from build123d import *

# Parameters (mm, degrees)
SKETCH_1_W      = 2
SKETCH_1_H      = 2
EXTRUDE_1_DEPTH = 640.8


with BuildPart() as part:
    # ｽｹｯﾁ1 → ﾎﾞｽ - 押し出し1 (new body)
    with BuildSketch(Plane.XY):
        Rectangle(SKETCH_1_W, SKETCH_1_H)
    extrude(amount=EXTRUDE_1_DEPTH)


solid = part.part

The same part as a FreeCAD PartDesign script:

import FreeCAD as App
import Part
import Sketcher
from FreeCAD import Vector
Q = App.Units.Quantity

doc = App.newDocument("Part")
body = doc.addObject("PartDesign::Body", "Body")

sketch1 = body.newObject("Sketcher::SketchObject", "Sketch")
sketch1.AttachmentSupport = (doc.getObject("XY_Plane"), [""])
sketch1.MapMode = "FlatFace"
sketch1.addGeometry(Part.LineSegment(Vector(-1, 1, 0), Vector(-1, -1, 0)), False)
sketch1.addGeometry(Part.LineSegment(Vector(-1, -1, 0), Vector(1, -1, 0)), False)
sketch1.addGeometry(Part.LineSegment(Vector(1, -1, 0), Vector(1, 1, 0)), False)
sketch1.addGeometry(Part.LineSegment(Vector(1, 1, 0), Vector(-1, 1, 0)), False)
sketch1.addConstraint(Sketcher.Constraint("Coincident", 0, 2, 1, 1))
sketch1.addConstraint(Sketcher.Constraint("Coincident", 1, 2, 2, 1))
sketch1.addConstraint(Sketcher.Constraint("Coincident", 2, 2, 3, 1))
sketch1.addConstraint(Sketcher.Constraint("Coincident", 3, 2, 0, 1))
sketch1.addConstraint(Sketcher.Constraint("Vertical", 0))
sketch1.addConstraint(Sketcher.Constraint("Horizontal", 1))
sketch1.addConstraint(Sketcher.Constraint("Vertical", 2))
sketch1.addConstraint(Sketcher.Constraint("Horizontal", 3))
sketch1.addConstraint(Sketcher.Constraint("Symmetric", 0, 2, 2, 2, -1, 1))
sketch1.addConstraint(Sketcher.Constraint("Equal", 3, 0))
sketch1.addConstraint(Sketcher.Constraint("DistanceX", 1, 1, 1, 2, Q("2 mm")))
pad1 = body.newObject("PartDesign::Pad", "Pad")
pad1.Profile = sketch1
pad1.Length = 640.8

doc.recompute()
